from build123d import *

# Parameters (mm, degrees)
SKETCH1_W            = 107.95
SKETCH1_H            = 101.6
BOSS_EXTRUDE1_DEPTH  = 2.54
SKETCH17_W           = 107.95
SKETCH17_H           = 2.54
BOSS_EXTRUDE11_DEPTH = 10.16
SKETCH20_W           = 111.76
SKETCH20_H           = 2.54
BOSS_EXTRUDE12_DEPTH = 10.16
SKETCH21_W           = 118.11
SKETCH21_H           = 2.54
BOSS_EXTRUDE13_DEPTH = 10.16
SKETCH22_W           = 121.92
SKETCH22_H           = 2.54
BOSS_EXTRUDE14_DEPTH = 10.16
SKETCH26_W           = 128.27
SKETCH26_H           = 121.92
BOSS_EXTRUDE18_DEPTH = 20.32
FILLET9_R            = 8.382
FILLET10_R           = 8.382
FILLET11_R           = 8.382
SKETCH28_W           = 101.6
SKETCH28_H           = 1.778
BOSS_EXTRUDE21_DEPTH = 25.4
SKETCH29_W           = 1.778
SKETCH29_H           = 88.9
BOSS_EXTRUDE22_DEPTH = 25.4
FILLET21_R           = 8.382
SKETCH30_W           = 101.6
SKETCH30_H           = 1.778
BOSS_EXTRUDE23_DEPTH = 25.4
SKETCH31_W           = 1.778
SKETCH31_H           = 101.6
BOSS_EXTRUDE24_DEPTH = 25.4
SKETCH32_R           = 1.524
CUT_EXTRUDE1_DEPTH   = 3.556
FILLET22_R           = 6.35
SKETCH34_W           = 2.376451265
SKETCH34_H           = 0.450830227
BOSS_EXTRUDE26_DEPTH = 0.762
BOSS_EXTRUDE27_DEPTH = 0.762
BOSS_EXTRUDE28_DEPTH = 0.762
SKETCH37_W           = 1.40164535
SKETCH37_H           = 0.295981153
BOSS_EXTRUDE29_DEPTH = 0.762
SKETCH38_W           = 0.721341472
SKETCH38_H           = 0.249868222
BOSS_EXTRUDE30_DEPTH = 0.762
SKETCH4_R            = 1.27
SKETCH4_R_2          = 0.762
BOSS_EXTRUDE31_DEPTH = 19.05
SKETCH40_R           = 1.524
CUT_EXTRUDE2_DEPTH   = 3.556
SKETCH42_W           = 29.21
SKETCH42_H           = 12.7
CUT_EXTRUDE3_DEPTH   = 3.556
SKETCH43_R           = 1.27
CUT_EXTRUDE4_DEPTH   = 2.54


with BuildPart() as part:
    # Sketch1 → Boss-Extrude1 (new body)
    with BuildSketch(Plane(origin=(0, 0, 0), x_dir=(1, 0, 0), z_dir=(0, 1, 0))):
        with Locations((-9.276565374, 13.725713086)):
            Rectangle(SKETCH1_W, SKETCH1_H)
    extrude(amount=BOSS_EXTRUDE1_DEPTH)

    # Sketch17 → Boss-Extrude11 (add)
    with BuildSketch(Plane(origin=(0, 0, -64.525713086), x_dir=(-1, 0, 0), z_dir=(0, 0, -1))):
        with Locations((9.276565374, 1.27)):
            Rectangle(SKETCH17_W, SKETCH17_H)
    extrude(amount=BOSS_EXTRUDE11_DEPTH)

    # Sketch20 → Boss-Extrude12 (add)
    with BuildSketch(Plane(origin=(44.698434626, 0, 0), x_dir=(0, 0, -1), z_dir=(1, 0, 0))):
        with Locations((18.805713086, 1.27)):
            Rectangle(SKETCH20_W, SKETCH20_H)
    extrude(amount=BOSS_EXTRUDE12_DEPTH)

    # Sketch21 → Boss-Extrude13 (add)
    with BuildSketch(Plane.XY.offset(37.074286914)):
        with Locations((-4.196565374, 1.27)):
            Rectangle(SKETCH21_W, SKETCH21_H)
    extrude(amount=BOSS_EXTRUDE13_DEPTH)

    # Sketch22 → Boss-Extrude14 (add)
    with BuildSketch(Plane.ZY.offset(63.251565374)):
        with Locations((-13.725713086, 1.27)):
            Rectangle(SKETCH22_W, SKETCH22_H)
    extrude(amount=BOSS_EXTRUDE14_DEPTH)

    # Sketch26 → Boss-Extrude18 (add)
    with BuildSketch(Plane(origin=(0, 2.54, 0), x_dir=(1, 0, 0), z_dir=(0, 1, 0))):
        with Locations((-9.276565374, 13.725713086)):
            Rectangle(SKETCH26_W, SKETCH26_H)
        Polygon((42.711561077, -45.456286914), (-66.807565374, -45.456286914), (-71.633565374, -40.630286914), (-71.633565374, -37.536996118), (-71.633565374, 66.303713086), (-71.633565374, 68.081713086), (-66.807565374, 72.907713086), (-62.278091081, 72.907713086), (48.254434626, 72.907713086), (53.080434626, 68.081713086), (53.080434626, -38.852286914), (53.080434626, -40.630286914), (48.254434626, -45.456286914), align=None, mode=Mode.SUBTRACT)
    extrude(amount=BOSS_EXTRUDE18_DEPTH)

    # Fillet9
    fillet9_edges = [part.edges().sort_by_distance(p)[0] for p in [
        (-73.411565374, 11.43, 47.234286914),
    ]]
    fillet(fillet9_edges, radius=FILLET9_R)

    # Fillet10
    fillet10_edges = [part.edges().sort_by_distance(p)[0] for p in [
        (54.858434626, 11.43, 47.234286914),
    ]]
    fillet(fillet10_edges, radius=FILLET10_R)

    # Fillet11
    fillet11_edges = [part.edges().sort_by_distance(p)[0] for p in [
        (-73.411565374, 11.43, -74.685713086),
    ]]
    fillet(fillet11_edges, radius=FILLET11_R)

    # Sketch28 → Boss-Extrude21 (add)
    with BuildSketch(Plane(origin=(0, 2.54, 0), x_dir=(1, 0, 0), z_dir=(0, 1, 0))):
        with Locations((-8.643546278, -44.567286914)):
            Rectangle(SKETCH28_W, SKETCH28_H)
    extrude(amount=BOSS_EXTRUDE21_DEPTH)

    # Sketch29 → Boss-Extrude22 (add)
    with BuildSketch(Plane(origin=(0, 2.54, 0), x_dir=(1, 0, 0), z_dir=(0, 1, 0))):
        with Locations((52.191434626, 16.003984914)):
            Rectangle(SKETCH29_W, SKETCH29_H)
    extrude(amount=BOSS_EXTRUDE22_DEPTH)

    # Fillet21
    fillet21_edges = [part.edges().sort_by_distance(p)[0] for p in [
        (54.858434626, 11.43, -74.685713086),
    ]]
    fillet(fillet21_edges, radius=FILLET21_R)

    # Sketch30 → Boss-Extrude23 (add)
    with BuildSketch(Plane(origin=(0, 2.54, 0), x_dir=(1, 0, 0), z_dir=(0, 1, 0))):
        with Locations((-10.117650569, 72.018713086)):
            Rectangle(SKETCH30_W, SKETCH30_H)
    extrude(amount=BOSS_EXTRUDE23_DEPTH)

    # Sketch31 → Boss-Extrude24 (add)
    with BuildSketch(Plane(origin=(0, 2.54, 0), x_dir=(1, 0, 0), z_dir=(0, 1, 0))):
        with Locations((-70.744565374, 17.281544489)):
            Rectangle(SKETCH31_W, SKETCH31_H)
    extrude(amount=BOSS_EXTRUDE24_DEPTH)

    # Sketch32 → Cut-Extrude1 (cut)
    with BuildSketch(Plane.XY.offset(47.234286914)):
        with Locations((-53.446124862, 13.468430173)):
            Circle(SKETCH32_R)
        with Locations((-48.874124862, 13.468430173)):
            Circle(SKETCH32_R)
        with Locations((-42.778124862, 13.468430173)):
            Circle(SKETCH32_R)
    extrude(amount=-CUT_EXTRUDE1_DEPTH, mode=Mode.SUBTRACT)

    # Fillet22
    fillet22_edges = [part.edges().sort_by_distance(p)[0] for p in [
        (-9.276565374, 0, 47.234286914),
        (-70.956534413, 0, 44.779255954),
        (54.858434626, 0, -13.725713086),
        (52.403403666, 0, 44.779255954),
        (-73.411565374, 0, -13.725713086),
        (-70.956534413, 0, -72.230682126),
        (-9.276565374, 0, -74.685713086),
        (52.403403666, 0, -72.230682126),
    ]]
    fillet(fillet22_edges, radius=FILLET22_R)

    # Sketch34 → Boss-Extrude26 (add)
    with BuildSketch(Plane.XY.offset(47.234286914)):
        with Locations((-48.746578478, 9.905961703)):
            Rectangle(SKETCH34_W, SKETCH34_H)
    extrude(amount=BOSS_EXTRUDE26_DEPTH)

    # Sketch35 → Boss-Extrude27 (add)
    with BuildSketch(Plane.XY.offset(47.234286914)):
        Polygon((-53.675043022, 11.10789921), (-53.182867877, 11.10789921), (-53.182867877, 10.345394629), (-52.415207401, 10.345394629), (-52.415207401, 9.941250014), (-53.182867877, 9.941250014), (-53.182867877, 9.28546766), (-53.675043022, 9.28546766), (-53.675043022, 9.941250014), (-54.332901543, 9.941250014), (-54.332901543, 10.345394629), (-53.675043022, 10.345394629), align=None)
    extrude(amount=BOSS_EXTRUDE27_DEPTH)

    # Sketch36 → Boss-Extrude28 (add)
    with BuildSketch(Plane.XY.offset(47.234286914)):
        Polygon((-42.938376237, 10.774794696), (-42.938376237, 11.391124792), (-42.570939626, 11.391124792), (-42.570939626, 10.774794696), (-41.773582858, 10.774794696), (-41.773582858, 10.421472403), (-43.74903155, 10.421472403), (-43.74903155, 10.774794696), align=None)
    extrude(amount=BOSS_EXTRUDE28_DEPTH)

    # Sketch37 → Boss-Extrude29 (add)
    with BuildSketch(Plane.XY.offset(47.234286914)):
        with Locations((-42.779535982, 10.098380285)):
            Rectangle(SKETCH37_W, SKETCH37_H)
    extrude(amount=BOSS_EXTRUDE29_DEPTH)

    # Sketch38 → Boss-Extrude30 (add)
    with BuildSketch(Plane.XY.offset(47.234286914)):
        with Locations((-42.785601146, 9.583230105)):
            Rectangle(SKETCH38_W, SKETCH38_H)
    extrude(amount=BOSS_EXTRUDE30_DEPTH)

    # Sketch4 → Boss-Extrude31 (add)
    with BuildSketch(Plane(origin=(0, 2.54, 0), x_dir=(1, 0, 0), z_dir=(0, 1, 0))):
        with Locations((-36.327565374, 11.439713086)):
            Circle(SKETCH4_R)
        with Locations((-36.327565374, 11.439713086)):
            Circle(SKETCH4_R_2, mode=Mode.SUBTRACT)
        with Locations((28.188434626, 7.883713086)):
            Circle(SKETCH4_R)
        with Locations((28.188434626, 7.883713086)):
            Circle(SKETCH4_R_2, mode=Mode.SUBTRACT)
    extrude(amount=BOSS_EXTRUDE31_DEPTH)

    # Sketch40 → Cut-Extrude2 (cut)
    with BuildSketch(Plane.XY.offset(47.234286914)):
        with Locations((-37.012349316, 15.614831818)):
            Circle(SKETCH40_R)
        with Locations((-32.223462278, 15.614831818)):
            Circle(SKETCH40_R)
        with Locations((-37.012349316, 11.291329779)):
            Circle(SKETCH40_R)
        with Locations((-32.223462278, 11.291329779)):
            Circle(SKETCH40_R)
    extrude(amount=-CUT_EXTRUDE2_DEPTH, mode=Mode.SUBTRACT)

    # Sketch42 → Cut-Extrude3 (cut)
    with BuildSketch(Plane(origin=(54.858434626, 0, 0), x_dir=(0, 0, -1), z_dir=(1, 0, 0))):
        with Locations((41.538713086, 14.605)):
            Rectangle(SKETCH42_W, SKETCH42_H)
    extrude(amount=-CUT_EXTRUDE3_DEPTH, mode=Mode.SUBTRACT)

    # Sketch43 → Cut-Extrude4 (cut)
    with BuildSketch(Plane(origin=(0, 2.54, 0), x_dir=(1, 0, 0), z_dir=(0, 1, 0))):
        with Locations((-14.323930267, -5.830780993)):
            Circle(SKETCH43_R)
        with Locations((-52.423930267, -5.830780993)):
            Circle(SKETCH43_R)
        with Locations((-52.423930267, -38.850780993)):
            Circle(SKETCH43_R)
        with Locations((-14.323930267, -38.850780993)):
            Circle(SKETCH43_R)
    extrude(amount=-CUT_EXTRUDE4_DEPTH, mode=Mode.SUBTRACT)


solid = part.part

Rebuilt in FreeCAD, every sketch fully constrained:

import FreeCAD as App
import Part
import Sketcher

V = App.Vector
Q = App.Units.Quantity


def edges_at(feature, points):
    """Names of the edges that pass closest to the given points."""
    edges = feature.Shape.Edges
    near = lambda p: min(range(len(edges)), key=lambda i: edges[i].distToShape(Part.Vertex(*p))[0])
    return sorted({f"Edge{near(p) + 1}" for p in points})


def add_polygon(sketch, points):
    """Adds a closed chain of lines whose ends are joined by coincident constraints."""
    first, n = sketch.GeometryCount, len(points)
    for a, b in zip(points, points[1:] + points[:1]):
        sketch.addGeometry(Part.LineSegment(App.Vector(*a, 0), App.Vector(*b, 0)), False)
    for i in range(n):
        sketch.addConstraint(Sketcher.Constraint("Coincident", first + i, 2, first + (i + 1) % n, 1))

doc = App.newDocument("Part")
params = doc.addObject("Spreadsheet::Sheet", "Params")
for row, (alias, value) in enumerate([
    ("sketch1_height", "4 in"),
    ("sketch1_width", "4.25 in"),
    ("pad1_length", "0.1 in"),
    ("sketch2_height", "0.1 in"),
    ("sketch2_width", "4.25 in"),
    ("pad2_length", "0.4 in"),
    ("sketch3_width", "0.1 in"),
    ("sketch3_height", "4.4 in"),
    ("pad3_length", "0.4 in"),
    ("sketch4_height", "0.1 in"),
    ("sketch4_width", "4.65 in"),
    ("pad4_length", "0.4 in"),
    ("sketch5_width", "0.1 in"),
    ("sketch5_height", "4.8 in"),
    ("pad5_length", "0.4 in"),
    ("sketch6_height", "4.8 in"),
    ("sketch6_width", "5.05 in"),
    ("sketch6_width2", "4.53 in"),
    ("sketch6_height2", "4.28 in"),
    ("pad6_length", "0.8 in"),
    ("fillet_radius", "0.33 in"),
    ("fillet2_radius", "0.33 in"),
    ("fillet3_radius", "0.33 in"),
    ("sketch7_width", "4 in"),
    ("sketch7_height", "0.07 in"),
    ("pad7_length", "1 in"),
    ("sketch8_height", "3.5 in"),
    ("sketch8_width", "0.07 in"),
    ("pad8_length", "1 in"),
    ("fillet4_radius", "0.33 in"),
    ("sketch9_width", "4 in"),
    ("sketch9_height", "0.07 in"),
    ("pad9_length", "1 in"),
    ("sketch10_height", "4 in"),
    ("sketch10_width", "0.07 in"),
    ("pad10_length", "1 in"),
    ("sketch11_diameter", "0.12 in"),
    ("pocket1_length", "0.14 in"),
    ("fillet5_radius", "0.25 in"),
    ("pad11_length", "0.03 in"),
    ("pad12_length", "0.03 in"),
    ("pad13_length", "0.03 in"),
    ("pad14_length", "0.03 in"),
    ("pad15_length", "0.03 in"),
    ("sketch17_diameter", "0.1 in"),
    ("sketch17_diameter2", "0.06 in"),
    ("pad16_length", "0.75 in"),
    ("sketch18_diameter", "0.12 in"),
    ("pocket2_length", "0.14 in"),
    ("sketch19_width", "0.5 in"),
    ("sketch19_height", "1.15 in"),
    ("pocket3_length", "0.14 in"),
    ("sketch20_diameter", "0.1 in"),
    ("pocket4_length", "0.1 in"),
], start=1):
    params.set(f"A{row}", alias)
    params.set(f"B{row}", "=" + value)
    params.setAlias(f"B{row}", alias)

body = doc.addObject("PartDesign::Body", "Body")

# Sketch on XZ plane
sketch1 = doc.addObject("Sketcher::SketchObject", "Sketch")
body.addObject(sketch1)
sketch1.AttachmentSupport = (doc.XZ_Plane, [""])
sketch1.MapMode = "FlatFace"
add_polygon(sketch1, [(-63, -65), (-63, 37), (45, 37), (45, -65)])  # lines 0-3
sketch1.addConstraint([
    Sketcher.Constraint("Vertical", 0),
    Sketcher.Constraint("Horizontal", 1),
    Sketcher.Constraint("Vertical", 2),
    Sketcher.Constraint("Horizontal", 3),
    Sketcher.Constraint("DistanceY", 0, 1, 0, 2, Q("4 in")),
    Sketcher.Constraint("DistanceX", 1, 1, 1, 2, Q("4.25 in")),
    Sketcher.Constraint("DistanceX", 0, 2, -1, 1, 63.251565),
    Sketcher.Constraint("DistanceY", -1, 1, 0, 2, 37.074287),
])
sketch1.setExpression("Constraints[8]", "Params.sketch1_height")
sketch1.setExpression("Constraints[9]", "Params.sketch1_width")
pad1 = doc.addObject("PartDesign::Pad", "Pad")
body.addObject(pad1)
pad1.Profile = sketch1
pad1.setExpression("Length", "Params.pad1_length")
pad1.Reversed = True

# Sketch on XY plane
sketch2 = doc.addObject("Sketcher::SketchObject", "Sketch001")
body.addObject(sketch2)
sketch2.AttachmentSupport = (doc.XY_Plane, [""])
sketch2.MapMode = "FlatFace"
sketch2.AttachmentOffset = App.Placement(V(0, 0, -64.525713), App.Rotation())
add_polygon(sketch2, [(44.7, 2.5), (44.7, 0), (-63.3, 0), (-63.3, 2.5)])  # lines 0-3
sketch2.addConstraint([
    Sketcher.Constraint("Vertical", 0),
    Sketcher.Constraint("Horizontal", 1),
    Sketcher.Constraint("Vertical", 2),
    Sketcher.Constraint("Horizontal", 3),
    Sketcher.Constraint("PointOnObject", 0, 2, -1),
    Sketcher.Constraint("DistanceY", 0, 2, 0, 1, Q("0.1 in")),
    Sketcher.Constraint("DistanceX", 1, 2, 1, 1, Q("4.25 in")),
    Sketcher.Constraint("DistanceX", -1, 1, 0, 2, 44.698435),
])
sketch2.setExpression("Constraints[9]", "Params.sketch2_height")
sketch2.setExpression("Constraints[10]", "Params.sketch2_width")
pad2 = doc.addObject("PartDesign::Pad", "Pad001")
body.addObject(pad2)
pad2.Profile = sketch2
pad2.setExpression("Length", "Params.pad2_length")
pad2.Reversed = True

# Sketch on YZ plane
sketch3 = doc.addObject("Sketcher::SketchObject", "Sketch002")
body.addObject(sketch3)
sketch3.AttachmentSupport = (doc.YZ_Plane, [""])
sketch3.MapMode = "FlatFace"
sketch3.AttachmentOffset = App.Placement(V(0, 0, 44.698435), App.Rotation())
add_polygon(sketch3, [(2.5, 37.1), (0, 37.1), (0, -74.7), (2.5, -74.7)])  # lines 0-3
sketch3.addConstraint([
    Sketcher.Constraint("Horizontal", 0),
    Sketcher.Constraint("Vertical", 1),
    Sketcher.Constraint("Horizontal", 2),
    Sketcher.Constraint("Vertical", 3),
    Sketcher.Constraint("PointOnObject", 0, 2, -2),
    Sketcher.Constraint("DistanceX", 0, 2, 0, 1, Q("0.1 in")),
    Sketcher.Constraint("DistanceY", 1, 2, 1, 1, Q("4.4 in")),
    Sketcher.Constraint("DistanceY", -1, 1, 0, 2, 37.074287),
])
sketch3.setExpression("Constraints[9]", "Params.sketch3_width")
sketch3.setExpression("Constraints[10]", "Params.sketch3_height")
pad3 = doc.addObject("PartDesign::Pad", "Pad002")
body.addObject(pad3)
pad3.Profile = sketch3
pad3.setExpression("Length", "Params.pad3_length")

# Sketch on XY plane
sketch4 = doc.addObject("Sketcher::SketchObject", "Sketch003")
body.addObject(sketch4)
sketch4.AttachmentSupport = (doc.XY_Plane, [""])
sketch4.MapMode = "FlatFace"
sketch4.AttachmentOffset = App.Placement(V(0, 0, 37.074287), App.Rotation())
add_polygon(sketch4, [(-63.3, 2.5), (-63.3, 0), (54.9, 0), (54.9, 2.5)])  # lines 0-3
sketch4.addConstraint([
    Sketcher.Constraint("Vertical", 0),
    Sketcher.Constraint("Horizontal", 1),
    Sketcher.Constraint("Vertical", 2),
    Sketcher.Constraint("Horizontal", 3),
    Sketcher.Constraint("PointOnObject", 0, 2, -1),
    Sketcher.Constraint("DistanceY", 0, 2, 0, 1, Q("0.1 in")),
    Sketcher.Constraint("DistanceX", 1, 1, 1, 2, Q("4.65 in")),
    Sketcher.Constraint("DistanceX", 0, 2, -1, 1, 63.251565),
])
sketch4.setExpression("Constraints[9]", "Params.sketch4_height")
sketch4.setExpression("Constraints[10]", "Params.sketch4_width")
pad4 = doc.addObject("PartDesign::Pad", "Pad003")
body.addObject(pad4)
pad4.Profile = sketch4
pad4.setExpression("Length", "Params.pad4_length")

# Sketch on YZ plane
sketch5 = doc.addObject("Sketcher::SketchObject", "Sketch004")
body.addObject(sketch5)
sketch5.AttachmentSupport = (doc.YZ_Plane, [""])
sketch5.MapMode = "FlatFace"
sketch5.AttachmentOffset = App.Placement(V(0, 0, -63.251565), App.Rotation())
add_polygon(sketch5, [(2.5, -74.7), (0, -74.7), (0, 47.2), (2.5, 47.2)])  # lines 0-3
sketch5.addConstraint([
    Sketcher.Constraint("Horizontal", 0),
    Sketcher.Constraint("Vertical", 1),
    Sketcher.Constraint("Horizontal", 2),
    Sketcher.Constraint("Vertical", 3),
    Sketcher.Constraint("PointOnObject", 0, 2, -2),
    Sketcher.Constraint("DistanceX", 0, 2, 0, 1, Q("0.1 in")),
    Sketcher.Constraint("DistanceY", 1, 1, 1, 2, Q("4.8 in")),
    Sketcher.Constraint("DistanceY", 0, 2, -1, 1, 74.685713),
])
sketch5.setExpression("Constraints[9]", "Params.sketch5_width")
sketch5.setExpression("Constraints[10]", "Params.sketch5_height")
pad5 = doc.addObject("PartDesign::Pad", "Pad004")
body.addObject(pad5)
pad5.Profile = sketch5
pad5.setExpression("Length", "Params.pad5_length")
pad5.Reversed = True

# Sketch on XZ plane
sketch6 = doc.addObject("Sketcher::SketchObject", "Sketch005")
body.addObject(sketch6)
sketch6.AttachmentSupport = (doc.XZ_Plane, [""])
sketch6.MapMode = "FlatFace"
sketch6.AttachmentOffset = App.Placement(V(0, 0, -0.1 * 25.4), App.Rotation())
add_polygon(sketch6, [(-73, -75), (-73, 47), (55, 47), (55, -75)])  # lines 0-3
add_polygon(sketch6, [(48, 45), (-67, 45), (-72, 41), (-72, -68), (-67, -73), (48, -73), (53, -68), (53, 41)])  # lines 4-11
sketch6.addConstraint([
    Sketcher.Constraint("Vertical", 0),
    Sketcher.Constraint("Horizontal", 1),
    Sketcher.Constraint("Vertical", 2),
    Sketcher.Constraint("Horizontal", 3),
    Sketcher.Constraint("Horizontal", 4),
    Sketcher.Constraint("Vertical", 6),
    Sketcher.Constraint("Horizontal", 8),
    Sketcher.Constraint("Vertical", 10),
    Sketcher.Constraint("Perpendicular", 5, 7),
    Sketcher.Constraint("Perpendicular", 7, 9),
    Sketcher.Constraint("Perpendicular", 9, 11),
    Sketcher.Constraint("Horizontal", 6, 2, 9, 2),
    Sketcher.Constraint("Horizontal", 5, 2, 10, 2),
    Sketcher.Constraint("Vertical", 4, 2, 7, 2),
    Sketcher.Constraint("Vertical", 8, 2, 11, 2),
    Sketcher.Constraint("DistanceY", 0, 1, 0, 2, Q("4.8 in")),
    Sketcher.Constraint("DistanceX", 1, 1, 1, 2, Q("5.05 in")),
    Sketcher.Constraint("DistanceX", 4, 2, 4, 1, Q("4.53 in")),
    Sketcher.Constraint("DistanceY", 6, 2, 6, 1, Q("4.28 in")),
    Sketcher.Constraint("DistanceX", 0, 2, 4, 2, Q("0.26 in")),
    Sketcher.Constraint("DistanceY", 4, 2, 0, 2, Q("0.07 in")),
    Sketcher.Constraint("DistanceX", 5, 2, 4, 2, Q("0.19 in")),
    Sketcher.Constraint("DistanceX", 0, 2, -1, 1, 73.411565),
    Sketcher.Constraint("DistanceY", -1, 1, 0, 2, 47.234287),
])
sketch6.setExpression("Constraints[27]", "Params.sketch6_height")
sketch6.setExpression("Constraints[28]", "Params.sketch6_width")
sketch6.setExpression("Constraints[29]", "Params.sketch6_width2")
sketch6.setExpression("Constraints[30]", "Params.sketch6_height2")
pad6 = doc.addObject("PartDesign::Pad", "Pad005")
body.addObject(pad6)
pad6.Profile = sketch6
pad6.setExpression("Length", "Params.pad6_length")
pad6.Reversed = True
doc.recompute()

fillet = doc.addObject("PartDesign::Fillet", "Fillet")
body.addObject(fillet)
fillet.Base = (pad6, edges_at(pad6, [(-73.412, 11.43, 47.234)]))
fillet.setExpression("Radius", "Params.fillet_radius")
doc.recompute()

fillet2 = doc.addObject("PartDesign::Fillet", "Fillet001")
body.addObject(fillet2)
fillet2.Base = (fillet, edges_at(fillet, [(54.858, 11.43, 47.234)]))
fillet2.setExpression("Radius", "Params.fillet2_radius")
doc.recompute()

fillet3 = doc.addObject("PartDesign::Fillet", "Fillet002")
body.addObject(fillet3)
fillet3.Base = (fillet2, edges_at(fillet2, [(-73.412, 11.43, -74.686)]))
fillet3.setExpression("Radius", "Params.fillet3_radius")

# Sketch on XZ plane
sketch7 = doc.addObject("Sketcher::SketchObject", "Sketch006")
body.addObject(sketch7)
sketch7.AttachmentSupport = (doc.XZ_Plane, [""])
sketch7.MapMode = "FlatFace"
sketch7.AttachmentOffset = App.Placement(V(0, 0, -0.1 * 25.4), App.Rotation())
add_polygon(sketch7, [(-59.4, 43.7), (-59.4, 45.5), (42.2, 45.5), (42.2, 43.7)])  # lines 0-3
sketch7.addConstraint([
    Sketcher.Constraint("Vertical", 0),
    Sketcher.Constraint("Horizontal", 1),
    Sketcher.Constraint("Vertical", 2),
    Sketcher.Constraint("Horizontal", 3),
    Sketcher.Constraint("DistanceX", 1, 1, 1, 2, Q("4 in")),
    Sketcher.Constraint("DistanceY", 0, 1, 0, 2, Q("0.07 in")),
    Sketcher.Constraint("DistanceX", 0, 2, -1, 1, 59.443546),
    Sketcher.Constraint("DistanceY", -1, 1, 0, 2, 45.456287),
])
sketch7.setExpression("Constraints[8]", "Params.sketch7_width")
sketch7.setExpression("Constraints[9]", "Params.sketch7_height")
pad7 = doc.addObject("PartDesign::Pad", "Pad006")
body.addObject(pad7)
pad7.Profile = sketch7
pad7.setExpression("Length", "Params.pad7_length")
pad7.Reversed = True

# Sketch on XZ plane
sketch8 = doc.addObject("Sketcher::SketchObject", "Sketch007")
body.addObject(sketch8)
sketch8.AttachmentSupport = (doc.XZ_Plane, [""])
sketch8.MapMode = "FlatFace"
sketch8.AttachmentOffset = App.Placement(V(0, 0, -0.1 * 25.4), App.Rotation())
add_polygon(sketch8, [(51.3, -60.5), (51.3, 28.4), (53.1, 28.4), (53.1, -60.5)])  # lines 0-3
sketch8.addConstraint([
    Sketcher.Constraint("Vertical", 0),
    Sketcher.Constraint("Horizontal", 1),
    Sketcher.Constraint("Vertical", 2),
    Sketcher.Constraint("Horizontal", 3),
    Sketcher.Constraint("DistanceY", 0, 1, 0, 2, Q("3.5 in")),
    Sketcher.Constraint("DistanceX", 1, 1, 1, 2, Q("0.07 in")),
    Sketcher.Constraint("DistanceX", -1, 1, 0, 2, 51.302435),
    Sketcher.Constraint("DistanceY", -1, 1, 0, 2, 28.446015),
])
sketch8.setExpression("Constraints[8]", "Params.sketch8_height")
sketch8.setExpression("Constraints[9]", "Params.sketch8_width")
pad8 = doc.addObject("PartDesign::Pad", "Pad007")
body.addObject(pad8)
pad8.Profile = sketch8
pad8.setExpression("Length", "Params.pad8_length")
pad8.Reversed = True
doc.recompute()

fillet4 = doc.addObject("PartDesign::Fillet", "Fillet003")
body.addObject(fillet4)
fillet4.Base = (pad8, edges_at(pad8, [(54.858, 11.43, -74.686)]))
fillet4.setExpression("Radius", "Params.fillet4_radius")

# Sketch on XZ plane
sketch9 = doc.addObject("Sketcher::SketchObject", "Sketch008")
body.addObject(sketch9)
sketch9.AttachmentSupport = (doc.XZ_Plane, [""])
sketch9.MapMode = "FlatFace"
sketch9.AttachmentOffset = App.Placement(V(0, 0, -0.1 * 25.4), App.Rotation())
add_polygon(sketch9, [(-60.9, -72.9), (-60.9, -71.1), (40.7, -71.1), (40.7, -72.9)])  # lines 0-3
sketch9.addConstraint([
    Sketcher.Constraint("Vertical", 0),
    Sketcher.Constraint("Horizontal", 1),
    Sketcher.Constraint("Vertical", 2),
    Sketcher.Constraint("Horizontal", 3),
    Sketcher.Constraint("DistanceX", 1, 1, 1, 2, Q("4 in")),
    Sketcher.Constraint("DistanceY", 0, 1, 0, 2, Q("0.07 in")),
    Sketcher.Constraint("DistanceX", 0, 2, -1, 1, 60.917651),
    Sketcher.Constraint("DistanceY", 0, 2, -1, 1, 71.129713),
])
sketch9.setExpression("Constraints[8]", "Params.sketch9_width")
sketch9.setExpression("Constraints[9]", "Params.sketch9_height")
pad9 = doc.addObject("PartDesign::Pad", "Pad008")
body.addObject(pad9)
pad9.Profile = sketch9
pad9.setExpression("Length", "Params.pad9_length")
pad9.Reversed = True

# Sketch on XZ plane
sketch10 = doc.addObject("Sketcher::SketchObject", "Sketch009")
body.addObject(sketch10)
sketch10.AttachmentSupport = (doc.XZ_Plane, [""])
sketch10.MapMode = "FlatFace"
sketch10.AttachmentOffset = App.Placement(V(0, 0, -0.1 * 25.4), App.Rotation())
add_polygon(sketch10, [(-71.6, -68.1), (-71.6, 33.5), (-69.9, 33.5), (-69.9, -68.1)])  # lines 0-3
sketch10.addConstraint([
    Sketcher.Constraint("Vertical", 0),
    Sketcher.Constraint("Horizontal", 1),
    Sketcher.Constraint("Vertical", 2),
    Sketcher.Constraint("Horizontal", 3),
    Sketcher.Constraint("DistanceY", 0, 1, 0, 2, Q("4 in")),
    Sketcher.Constraint("DistanceX", 1, 1, 1, 2, Q("0.07 in")),
    Sketcher.Constraint("DistanceX", 0, 2, -1, 1, 71.633565),
    Sketcher.Constraint("DistanceY", -1, 1, 0, 2, 33.518456),
])
sketch10.setExpression("Constraints[8]", "Params.sketch10_height")
sketch10.setExpression("Constraints[9]", "Params.sketch10_width")
pad10 = doc.addObject("PartDesign::Pad", "Pad009")
body.addObject(pad10)
pad10.Profile = sketch10
pad10.setExpression("Length", "Params.pad10_length")
pad10.Reversed = True

# Sketch on XY plane
sketch11 = doc.addObject("Sketcher::SketchObject", "Sketch010")
body.addObject(sketch11)
sketch11.AttachmentSupport = (doc.XY_Plane, [""])
sketch11.MapMode = "FlatFace"
sketch11.AttachmentOffset = App.Placement(V(0, 0, 47.234287), App.Rotation())
sketch11.addGeometry([
    Part.Circle(V(-53.4, 13.5, 0), V(0, 0, 1), 1.5),
    Part.Circle(V(-48.9, 13.5, 0), V(0, 0, 1), 1.5),
    Part.Circle(V(-42.8, 13.5, 0), V(0, 0, 1), 1.5),
], False)
sketch11.addConstraint([
    Sketcher.Constraint("Equal", 0, 1),
    Sketcher.Constraint("Equal", 1, 2),
    Sketcher.Constraint("Horizontal", 0, 3, 1, 3),
    Sketcher.Constraint("Horizontal", 1, 3, 2, 3),
    Sketcher.Constraint("Diameter", 0, Q("0.12 in")),
    Sketcher.Constraint("DistanceX", 0, 3, 1, 3, Q("0.18 in")),
    Sketcher.Constraint("DistanceX", 1, 3, 2, 3, Q("0.24 in")),
    Sketcher.Constraint("DistanceY", -1, 1, 0, 3, 13.46843),
    Sketcher.Constraint("DistanceX", 0, 3, -1, 1, 53.446125),
])
sketch11.setExpression("Constraints[4]", "Params.sketch11_diameter")
pocket1 = doc.addObject("PartDesign::Pocket", "Pocket")
body.addObject(pocket1)
pocket1.Profile = sketch11
pocket1.setExpression("Length", "Params.pocket1_length")
doc.recompute()

fillet5 = doc.addObject("PartDesign::Fillet", "Fillet004")
body.addObject(fillet5)
fillet5.Base = (pocket1, edges_at(pocket1, [
    (-9.277, 0, 47.234),
    (-70.957, 0, 44.779),
    (54.858, 0, -13.726),
    (52.403, 0, 44.779),
    (-73.412, 0, -13.726),
    (-70.957, 0, -72.231),
    (-9.277, 0, -74.686),
    (52.403, 0, -72.231),
]))
fillet5.setExpression("Radius", "Params.fillet5_radius")

# Sketch on XY plane
sketch12 = doc.addObject("Sketcher::SketchObject", "Sketch011")
body.addObject(sketch12)
sketch12.AttachmentSupport = (doc.XY_Plane, [""])
sketch12.MapMode = "FlatFace"
sketch12.AttachmentOffset = App.Placement(V(0, 0, 47.234287), App.Rotation())
add_polygon(sketch12, [(-49.93, 10.13), (-49.93, 9.68), (-47.56, 9.68), (-47.56, 10.13)])  # lines 0-3
sketch12.addConstraint([
    Sketcher.Constraint("Vertical", 0),
    Sketcher.Constraint("Horizontal", 1),
    Sketcher.Constraint("Vertical", 2),
    Sketcher.Constraint("Horizontal", 3),
    Sketcher.Constraint("DistanceX", 1, 1, 1, 2, 2.376451),
    Sketcher.Constraint("DistanceY", 0, 2, 0, 1, 0.45083),
    Sketcher.Constraint("DistanceX", 0, 2, -1, 1, 49.934804),
    Sketcher.Constraint("DistanceY", -1, 1, 0, 2, 9.680547),
])
pad11 = doc.addObject("PartDesign::Pad", "Pad010")
body.addObject(pad11)
pad11.Profile = sketch12
pad11.setExpression("Length", "Params.pad11_length")

# Sketch on XY plane
sketch13 = doc.addObject("Sketcher::SketchObject", "Sketch012")
body.addObject(sketch13)
sketch13.AttachmentSupport = (doc.XY_Plane, [""])
sketch13.MapMode = "FlatFace"
sketch13.AttachmentOffset = App.Placement(V(0, 0, 47.234287), App.Rotation())
add_polygon(sketch13, [(-53.18, 11.11), (-53.68, 11.11), (-53.68, 10.35), (-54.33, 10.35), (-54.33, 9.94), (-53.68, 9.94), (-53.68, 9.29), (-53.18, 9.29), (-53.18, 9.94), (-52.42, 9.94), (-52.42, 10.35), (-53.18, 10.35)])  # lines 0-11
sketch13.addConstraint([
    Sketcher.Constraint("Horizontal", 0),
    Sketcher.Constraint("Vertical", 1),
    Sketcher.Constraint("Horizontal", 2),
    Sketcher.Constraint("Vertical", 3),
    Sketcher.Constraint("Horizontal", 4),
    Sketcher.Constraint("Vertical", 5),
    Sketcher.Constraint("Horizontal", 6),
    Sketcher.Constraint("Vertical", 7),
    Sketcher.Constraint("Horizontal", 8),
    Sketcher.Constraint("Vertical", 9),
    Sketcher.Constraint("Horizontal", 10),
    Sketcher.Constraint("Vertical", 11),
    Sketcher.Constraint("Horizontal", 4, 2, 7, 2),
    Sketcher.Constraint("Horizontal", 2, 2, 9, 2),
    Sketcher.Constraint("Vertical", 1, 2, 4, 2),
    Sketcher.Constraint("Vertical", 7, 2, 10, 2),
    Sketcher.Constraint("DistanceX", 2, 2, 2, 1, Q("0.0258999 in")),
    Sketcher.Constraint("DistanceX", 4, 2, 8, 2, Q("0.0495998 in")),
    Sketcher.Constraint("DistanceX", 8, 1, 8, 2, 0.76766),
    Sketcher.Constraint("DistanceY", -1, 1, 0, 2, 11.107899),
    Sketcher.Constraint("DistanceX", 2, 2, -1, 1, 54.332902),
    Sketcher.Constraint("DistanceY", 1, 2, 1, 1, 0.762505),
    Sketcher.Constraint("DistanceY", 3, 2, 3, 1, 0.404145),
    Sketcher.Constraint("DistanceY", 5, 2, 5, 1, 0.655782),
])
pad12 = doc.addObject("PartDesign::Pad", "Pad011")
body.addObject(pad12)
pad12.Profile = sketch13
pad12.setExpression("Length", "Params.pad12_length")

# Sketch on XY plane
sketch14 = doc.addObject("Sketcher::SketchObject", "Sketch013")
body.addObject(sketch14)
sketch14.AttachmentSupport = (doc.XY_Plane, [""])
sketch14.MapMode = "FlatFace"
sketch14.AttachmentOffset = App.Placement(V(0, 0, 47.234287), App.Rotation())
add_polygon(sketch14, [(-42.94, 11.39), (-42.94, 10.77), (-43.75, 10.77), (-43.75, 10.42), (-41.77, 10.42), (-41.77, 10.77), (-42.57, 10.77), (-42.57, 11.39)])  # lines 0-7
sketch14.addConstraint([
    Sketcher.Constraint("Vertical", 0),
    Sketcher.Constraint("Horizontal", 1),
    Sketcher.Constraint("Vertical", 2),
    Sketcher.Constraint("Horizontal", 3),
    Sketcher.Constraint("Vertical", 4),
    Sketcher.Constraint("Horizontal", 5),
    Sketcher.Constraint("Vertical", 6),
    Sketcher.Constraint("Horizontal", 7),
    Sketcher.Constraint("Horizontal", 1, 2, 4, 2),
    Sketcher.Constraint("DistanceX", 3, 1, 3, 2, 1.975449),
    Sketcher.Constraint("DistanceY", 0, 2, 0, 1, 0.61633),
    Sketcher.Constraint("DistanceX", 1, 2, 1, 1, 0.810655),
    Sketcher.Constraint("DistanceX", 5, 2, 5, 1, 0.797357),
    Sketcher.Constraint("DistanceY", 2, 2, 2, 1, 0.353322),
    Sketcher.Constraint("DistanceX", 1, 2, -1, 1, 43.749032),
    Sketcher.Constraint("DistanceY", -1, 1, 0, 2, 10.774795),
])
pad13 = doc.addObject("PartDesign::Pad", "Pad012")
body.addObject(pad13)
pad13.Profile = sketch14
pad13.setExpression("Length", "Params.pad13_length")

# Sketch on XY plane
sketch15 = doc.addObject("Sketcher::SketchObject", "Sketch014")
body.addObject(sketch15)
sketch15.AttachmentSupport = (doc.XY_Plane, [""])
sketch15.MapMode = "FlatFace"
sketch15.AttachmentOffset = App.Placement(V(0, 0, 47.234287), App.Rotation())
add_polygon(sketch15, [(-43.48, 10.25), (-43.48, 9.95), (-42.08, 9.95), (-42.08, 10.25)])  # lines 0-3
sketch15.addConstraint([
    Sketcher.Constraint("Vertical", 0),
    Sketcher.Constraint("Horizontal", 1),
    Sketcher.Constraint("Vertical", 2),
    Sketcher.Constraint("Horizontal", 3),
    Sketcher.Constraint("DistanceY", 0, 2, 0, 1, 0.295981),
    Sketcher.Constraint("DistanceX", 1, 1, 1, 2, 1.401645),
    Sketcher.Constraint("DistanceX", 0, 2, -1, 1, 43.480359),
    Sketcher.Constraint("DistanceY", -1, 1, 0, 2, 9.95039),
])
pad14 = doc.addObject("PartDesign::Pad", "Pad013")
body.addObject(pad14)
pad14.Profile = sketch15
pad14.setExpression("Length", "Params.pad14_length")

# Sketch on XY plane
sketch16 = doc.addObject("Sketcher::SketchObject", "Sketch015")
body.addObject(sketch16)
sketch16.AttachmentSupport = (doc.XY_Plane, [""])
sketch16.MapMode = "FlatFace"
sketch16.AttachmentOffset = App.Placement(V(0, 0, 47.234287), App.Rotation())
add_polygon(sketch16, [(-43.15, 9.71), (-43.15, 9.46), (-42.42, 9.46), (-42.42, 9.71)])  # lines 0-3
sketch16.addConstraint([
    Sketcher.Constraint("Vertical", 0),
    Sketcher.Constraint("Horizontal", 1),
    Sketcher.Constraint("Vertical", 2),
    Sketcher.Constraint("Horizontal", 3),
    Sketcher.Constraint("DistanceX", 1, 1, 1, 2, 0.721341),
    Sketcher.Constraint("DistanceY", 0, 2, 0, 1, 0.249868),
    Sketcher.Constraint("DistanceX", 0, 2, -1, 1, 43.146272),
    Sketcher.Constraint("DistanceY", -1, 1, 0, 2, 9.458296),
])
pad15 = doc.addObject("PartDesign::Pad", "Pad014")
body.addObject(pad15)
pad15.Profile = sketch16
pad15.setExpression("Length", "Params.pad15_length")

# Sketch on XZ plane
sketch17 = doc.addObject("Sketcher::SketchObject", "Sketch016")
body.addObject(sketch17)
sketch17.AttachmentSupport = (doc.XZ_Plane, [""])
sketch17.MapMode = "FlatFace"
sketch17.AttachmentOffset = App.Placement(V(0, 0, -0.1 * 25.4), App.Rotation())
sketch17.addGeometry([
    Part.Circle(V(-36.3, -11.4, 0), V(0, 0, 1), 1.3),
    Part.Circle(V(-36.3, -11.4, 0), V(0, 0, 1), 0.8),
    Part.Circle(V(28.2, -7.9, 0), V(0, 0, 1), 1.3),
    Part.Circle(V(28.2, -7.9, 0), V(0, 0, 1), 0.8),
], False)
sketch17.addConstraint([
    Sketcher.Constraint("Coincident", 1, 3, 0, 3),
    Sketcher.Constraint("Coincident", 3, 3, 2, 3),
    Sketcher.Constraint("Equal", 0, 2),
    Sketcher.Constraint("Equal", 1, 3),
    Sketcher.Constraint("Diameter", 0, Q("0.1 in")),
    Sketcher.Constraint("Diameter", 1, Q("0.06 in")),
    Sketcher.Constraint("DistanceX", 0, 3, 2, 3, Q("2.54 in")),
    Sketcher.Constraint("DistanceY", 0, 3, 2, 3, Q("0.14 in")),
    Sketcher.Constraint("DistanceX", 0, 3, -1, 1, 36.327565),
    Sketcher.Constraint("DistanceY", 0, 3, -1, 1, 11.439713),
])
sketch17.setExpression("Constraints[4]", "Params.sketch17_diameter")
sketch17.setExpression("Constraints[5]", "Params.sketch17_diameter2")
pad16 = doc.addObject("PartDesign::Pad", "Pad015")
body.addObject(pad16)
pad16.Profile = sketch17
pad16.setExpression("Length", "Params.pad16_length")
pad16.Reversed = True

# Sketch on XY plane
sketch18 = doc.addObject("Sketcher::SketchObject", "Sketch017")
body.addObject(sketch18)
sketch18.AttachmentSupport = (doc.XY_Plane, [""])
sketch18.MapMode = "FlatFace"
sketch18.AttachmentOffset = App.Placement(V(0, 0, 47.234287), App.Rotation())
sketch18.addGeometry([
    Part.Circle(V(-37, 15.6, 0), V(0, 0, 1), 1.5),
    Part.Circle(V(-32.2, 15.6, 0), V(0, 0, 1), 1.5),
    Part.Circle(V(-37, 11.3, 0), V(0, 0, 1), 1.5),
    Part.Circle(V(-32.2, 11.3, 0), V(0, 0, 1), 1.5),
], False)
sketch18.addConstraint([
    Sketcher.Constraint("Equal", 0, 1),
    Sketcher.Constraint("Equal", 1, 2),
    Sketcher.Constraint("Equal", 2, 3),
    Sketcher.Constraint("Horizontal", 0, 3, 1, 3),
    Sketcher.Constraint("Horizontal", 2, 3, 3, 3),
    Sketcher.Constraint("Vertical", 0, 3, 2, 3),
    Sketcher.Constraint("Vertical", 1, 3, 3, 3),
    Sketcher.Constraint("Diameter", 0, Q("0.12 in")),
    Sketcher.Constraint("DistanceX", 0, 3, -1, 1, 37.012349),
    Sketcher.Constraint("DistanceY", -1, 1, 0, 3, 15.614832),
    Sketcher.Constraint("DistanceY", -1, 1, 2, 3, 11.29133),
    Sketcher.Constraint("DistanceX", 1, 3, -1, 1, 32.223462),
])
sketch18.setExpression("Constraints[7]", "Params.sketch18_diameter")
pocket2 = doc.addObject("PartDesign::Pocket", "Pocket001")
body.addObject(pocket2)
pocket2.Profile = sketch18
pocket2.setExpression("Length", "Params.pocket2_length")

# Sketch on YZ plane
sketch19 = doc.addObject("Sketcher::SketchObject", "Sketch018")
body.addObject(sketch19)
sketch19.AttachmentSupport = (doc.YZ_Plane, [""])
sketch19.MapMode = "FlatFace"
sketch19.AttachmentOffset = App.Placement(V(0, 0, 54.858435), App.Rotation())
add_polygon(sketch19, [(21, -27), (8, -27), (8, -56), (21, -56)])  # lines 0-3
sketch19.addConstraint([
    Sketcher.Constraint("Horizontal", 0),
    Sketcher.Constraint("Vertical", 1),
    Sketcher.Constraint("Horizontal", 2),
    Sketcher.Constraint("Vertical", 3),
    Sketcher.Constraint("DistanceX", 0, 2, 0, 1, Q("0.5 in")),
    Sketcher.Constraint("DistanceY", 1, 2, 1, 1, Q("1.15 in")),
    Sketcher.Constraint("DistanceX", -1, 1, 0, 2, Q("0.325 in")),
    Sketcher.Constraint("DistanceY", 0, 2, -1, 1, 26.933713),
])
sketch19.setExpression("Constraints[8]", "Params.sketch19_width")
sketch19.setExpression("Constraints[9]", "Params.sketch19_height")
pocket3 = doc.addObject("PartDesign::Pocket", "Pocket002")
body.addObject(pocket3)
pocket3.Profile = sketch19
pocket3.setExpression("Length", "Params.pocket3_length")

# Sketch on XZ plane
sketch20 = doc.addObject("Sketcher::SketchObject", "Sketch019")
body.addObject(sketch20)
sketch20.AttachmentSupport = (doc.XZ_Plane, [""])
sketch20.MapMode = "FlatFace"
sketch20.AttachmentOffset = App.Placement(V(0, 0, -0.1 * 25.4), App.Rotation())
sketch20.addGeometry([
    Part.Circle(V(-14.3, 5.8, 0), V(0, 0, 1), 1.3),
    Part.Circle(V(-52.4, 5.8, 0), V(0, 0, 1), 1.3),
    Part.Circle(V(-52.4, 38.9, 0), V(0, 0, 1), 1.3),
    Part.Circle(V(-14.3, 38.9, 0), V(0, 0, 1), 1.3),
], False)
sketch20.addConstraint([
    Sketcher.Constraint("Equal", 0, 1),
    Sketcher.Constraint("Equal", 1, 2),
    Sketcher.Constraint("Equal", 2, 3),
    Sketcher.Constraint("Horizontal", 0, 3, 1, 3),
    Sketcher.Constraint("Horizontal", 2, 3, 3, 3),
    Sketcher.Constraint("Vertical", 1, 3, 2, 3),
    Sketcher.Constraint("Vertical", 0, 3, 3, 3),
    Sketcher.Constraint("Diameter", 0, Q("0.1 in")),
    Sketcher.Constraint("DistanceX", 1, 3, 0, 3, Q("1.5 in")),
    Sketcher.Constraint("DistanceY", 1, 3, 2, 3, Q("1.3 in")),
    Sketcher.Constraint("DistanceX", 0, 3, -1, 1, 14.32393),
    Sketcher.Constraint("DistanceY", -1, 1, 0, 3, 5.830781),
])
sketch20.setExpression("Constraints[7]", "Params.sketch20_diameter")
pocket4 = doc.addObject("PartDesign::Pocket", "Pocket003")
body.addObject(pocket4)
pocket4.Profile = sketch20
pocket4.setExpression("Length", "Params.pocket4_length")
pocket4.Reversed = True

doc.recompute()
